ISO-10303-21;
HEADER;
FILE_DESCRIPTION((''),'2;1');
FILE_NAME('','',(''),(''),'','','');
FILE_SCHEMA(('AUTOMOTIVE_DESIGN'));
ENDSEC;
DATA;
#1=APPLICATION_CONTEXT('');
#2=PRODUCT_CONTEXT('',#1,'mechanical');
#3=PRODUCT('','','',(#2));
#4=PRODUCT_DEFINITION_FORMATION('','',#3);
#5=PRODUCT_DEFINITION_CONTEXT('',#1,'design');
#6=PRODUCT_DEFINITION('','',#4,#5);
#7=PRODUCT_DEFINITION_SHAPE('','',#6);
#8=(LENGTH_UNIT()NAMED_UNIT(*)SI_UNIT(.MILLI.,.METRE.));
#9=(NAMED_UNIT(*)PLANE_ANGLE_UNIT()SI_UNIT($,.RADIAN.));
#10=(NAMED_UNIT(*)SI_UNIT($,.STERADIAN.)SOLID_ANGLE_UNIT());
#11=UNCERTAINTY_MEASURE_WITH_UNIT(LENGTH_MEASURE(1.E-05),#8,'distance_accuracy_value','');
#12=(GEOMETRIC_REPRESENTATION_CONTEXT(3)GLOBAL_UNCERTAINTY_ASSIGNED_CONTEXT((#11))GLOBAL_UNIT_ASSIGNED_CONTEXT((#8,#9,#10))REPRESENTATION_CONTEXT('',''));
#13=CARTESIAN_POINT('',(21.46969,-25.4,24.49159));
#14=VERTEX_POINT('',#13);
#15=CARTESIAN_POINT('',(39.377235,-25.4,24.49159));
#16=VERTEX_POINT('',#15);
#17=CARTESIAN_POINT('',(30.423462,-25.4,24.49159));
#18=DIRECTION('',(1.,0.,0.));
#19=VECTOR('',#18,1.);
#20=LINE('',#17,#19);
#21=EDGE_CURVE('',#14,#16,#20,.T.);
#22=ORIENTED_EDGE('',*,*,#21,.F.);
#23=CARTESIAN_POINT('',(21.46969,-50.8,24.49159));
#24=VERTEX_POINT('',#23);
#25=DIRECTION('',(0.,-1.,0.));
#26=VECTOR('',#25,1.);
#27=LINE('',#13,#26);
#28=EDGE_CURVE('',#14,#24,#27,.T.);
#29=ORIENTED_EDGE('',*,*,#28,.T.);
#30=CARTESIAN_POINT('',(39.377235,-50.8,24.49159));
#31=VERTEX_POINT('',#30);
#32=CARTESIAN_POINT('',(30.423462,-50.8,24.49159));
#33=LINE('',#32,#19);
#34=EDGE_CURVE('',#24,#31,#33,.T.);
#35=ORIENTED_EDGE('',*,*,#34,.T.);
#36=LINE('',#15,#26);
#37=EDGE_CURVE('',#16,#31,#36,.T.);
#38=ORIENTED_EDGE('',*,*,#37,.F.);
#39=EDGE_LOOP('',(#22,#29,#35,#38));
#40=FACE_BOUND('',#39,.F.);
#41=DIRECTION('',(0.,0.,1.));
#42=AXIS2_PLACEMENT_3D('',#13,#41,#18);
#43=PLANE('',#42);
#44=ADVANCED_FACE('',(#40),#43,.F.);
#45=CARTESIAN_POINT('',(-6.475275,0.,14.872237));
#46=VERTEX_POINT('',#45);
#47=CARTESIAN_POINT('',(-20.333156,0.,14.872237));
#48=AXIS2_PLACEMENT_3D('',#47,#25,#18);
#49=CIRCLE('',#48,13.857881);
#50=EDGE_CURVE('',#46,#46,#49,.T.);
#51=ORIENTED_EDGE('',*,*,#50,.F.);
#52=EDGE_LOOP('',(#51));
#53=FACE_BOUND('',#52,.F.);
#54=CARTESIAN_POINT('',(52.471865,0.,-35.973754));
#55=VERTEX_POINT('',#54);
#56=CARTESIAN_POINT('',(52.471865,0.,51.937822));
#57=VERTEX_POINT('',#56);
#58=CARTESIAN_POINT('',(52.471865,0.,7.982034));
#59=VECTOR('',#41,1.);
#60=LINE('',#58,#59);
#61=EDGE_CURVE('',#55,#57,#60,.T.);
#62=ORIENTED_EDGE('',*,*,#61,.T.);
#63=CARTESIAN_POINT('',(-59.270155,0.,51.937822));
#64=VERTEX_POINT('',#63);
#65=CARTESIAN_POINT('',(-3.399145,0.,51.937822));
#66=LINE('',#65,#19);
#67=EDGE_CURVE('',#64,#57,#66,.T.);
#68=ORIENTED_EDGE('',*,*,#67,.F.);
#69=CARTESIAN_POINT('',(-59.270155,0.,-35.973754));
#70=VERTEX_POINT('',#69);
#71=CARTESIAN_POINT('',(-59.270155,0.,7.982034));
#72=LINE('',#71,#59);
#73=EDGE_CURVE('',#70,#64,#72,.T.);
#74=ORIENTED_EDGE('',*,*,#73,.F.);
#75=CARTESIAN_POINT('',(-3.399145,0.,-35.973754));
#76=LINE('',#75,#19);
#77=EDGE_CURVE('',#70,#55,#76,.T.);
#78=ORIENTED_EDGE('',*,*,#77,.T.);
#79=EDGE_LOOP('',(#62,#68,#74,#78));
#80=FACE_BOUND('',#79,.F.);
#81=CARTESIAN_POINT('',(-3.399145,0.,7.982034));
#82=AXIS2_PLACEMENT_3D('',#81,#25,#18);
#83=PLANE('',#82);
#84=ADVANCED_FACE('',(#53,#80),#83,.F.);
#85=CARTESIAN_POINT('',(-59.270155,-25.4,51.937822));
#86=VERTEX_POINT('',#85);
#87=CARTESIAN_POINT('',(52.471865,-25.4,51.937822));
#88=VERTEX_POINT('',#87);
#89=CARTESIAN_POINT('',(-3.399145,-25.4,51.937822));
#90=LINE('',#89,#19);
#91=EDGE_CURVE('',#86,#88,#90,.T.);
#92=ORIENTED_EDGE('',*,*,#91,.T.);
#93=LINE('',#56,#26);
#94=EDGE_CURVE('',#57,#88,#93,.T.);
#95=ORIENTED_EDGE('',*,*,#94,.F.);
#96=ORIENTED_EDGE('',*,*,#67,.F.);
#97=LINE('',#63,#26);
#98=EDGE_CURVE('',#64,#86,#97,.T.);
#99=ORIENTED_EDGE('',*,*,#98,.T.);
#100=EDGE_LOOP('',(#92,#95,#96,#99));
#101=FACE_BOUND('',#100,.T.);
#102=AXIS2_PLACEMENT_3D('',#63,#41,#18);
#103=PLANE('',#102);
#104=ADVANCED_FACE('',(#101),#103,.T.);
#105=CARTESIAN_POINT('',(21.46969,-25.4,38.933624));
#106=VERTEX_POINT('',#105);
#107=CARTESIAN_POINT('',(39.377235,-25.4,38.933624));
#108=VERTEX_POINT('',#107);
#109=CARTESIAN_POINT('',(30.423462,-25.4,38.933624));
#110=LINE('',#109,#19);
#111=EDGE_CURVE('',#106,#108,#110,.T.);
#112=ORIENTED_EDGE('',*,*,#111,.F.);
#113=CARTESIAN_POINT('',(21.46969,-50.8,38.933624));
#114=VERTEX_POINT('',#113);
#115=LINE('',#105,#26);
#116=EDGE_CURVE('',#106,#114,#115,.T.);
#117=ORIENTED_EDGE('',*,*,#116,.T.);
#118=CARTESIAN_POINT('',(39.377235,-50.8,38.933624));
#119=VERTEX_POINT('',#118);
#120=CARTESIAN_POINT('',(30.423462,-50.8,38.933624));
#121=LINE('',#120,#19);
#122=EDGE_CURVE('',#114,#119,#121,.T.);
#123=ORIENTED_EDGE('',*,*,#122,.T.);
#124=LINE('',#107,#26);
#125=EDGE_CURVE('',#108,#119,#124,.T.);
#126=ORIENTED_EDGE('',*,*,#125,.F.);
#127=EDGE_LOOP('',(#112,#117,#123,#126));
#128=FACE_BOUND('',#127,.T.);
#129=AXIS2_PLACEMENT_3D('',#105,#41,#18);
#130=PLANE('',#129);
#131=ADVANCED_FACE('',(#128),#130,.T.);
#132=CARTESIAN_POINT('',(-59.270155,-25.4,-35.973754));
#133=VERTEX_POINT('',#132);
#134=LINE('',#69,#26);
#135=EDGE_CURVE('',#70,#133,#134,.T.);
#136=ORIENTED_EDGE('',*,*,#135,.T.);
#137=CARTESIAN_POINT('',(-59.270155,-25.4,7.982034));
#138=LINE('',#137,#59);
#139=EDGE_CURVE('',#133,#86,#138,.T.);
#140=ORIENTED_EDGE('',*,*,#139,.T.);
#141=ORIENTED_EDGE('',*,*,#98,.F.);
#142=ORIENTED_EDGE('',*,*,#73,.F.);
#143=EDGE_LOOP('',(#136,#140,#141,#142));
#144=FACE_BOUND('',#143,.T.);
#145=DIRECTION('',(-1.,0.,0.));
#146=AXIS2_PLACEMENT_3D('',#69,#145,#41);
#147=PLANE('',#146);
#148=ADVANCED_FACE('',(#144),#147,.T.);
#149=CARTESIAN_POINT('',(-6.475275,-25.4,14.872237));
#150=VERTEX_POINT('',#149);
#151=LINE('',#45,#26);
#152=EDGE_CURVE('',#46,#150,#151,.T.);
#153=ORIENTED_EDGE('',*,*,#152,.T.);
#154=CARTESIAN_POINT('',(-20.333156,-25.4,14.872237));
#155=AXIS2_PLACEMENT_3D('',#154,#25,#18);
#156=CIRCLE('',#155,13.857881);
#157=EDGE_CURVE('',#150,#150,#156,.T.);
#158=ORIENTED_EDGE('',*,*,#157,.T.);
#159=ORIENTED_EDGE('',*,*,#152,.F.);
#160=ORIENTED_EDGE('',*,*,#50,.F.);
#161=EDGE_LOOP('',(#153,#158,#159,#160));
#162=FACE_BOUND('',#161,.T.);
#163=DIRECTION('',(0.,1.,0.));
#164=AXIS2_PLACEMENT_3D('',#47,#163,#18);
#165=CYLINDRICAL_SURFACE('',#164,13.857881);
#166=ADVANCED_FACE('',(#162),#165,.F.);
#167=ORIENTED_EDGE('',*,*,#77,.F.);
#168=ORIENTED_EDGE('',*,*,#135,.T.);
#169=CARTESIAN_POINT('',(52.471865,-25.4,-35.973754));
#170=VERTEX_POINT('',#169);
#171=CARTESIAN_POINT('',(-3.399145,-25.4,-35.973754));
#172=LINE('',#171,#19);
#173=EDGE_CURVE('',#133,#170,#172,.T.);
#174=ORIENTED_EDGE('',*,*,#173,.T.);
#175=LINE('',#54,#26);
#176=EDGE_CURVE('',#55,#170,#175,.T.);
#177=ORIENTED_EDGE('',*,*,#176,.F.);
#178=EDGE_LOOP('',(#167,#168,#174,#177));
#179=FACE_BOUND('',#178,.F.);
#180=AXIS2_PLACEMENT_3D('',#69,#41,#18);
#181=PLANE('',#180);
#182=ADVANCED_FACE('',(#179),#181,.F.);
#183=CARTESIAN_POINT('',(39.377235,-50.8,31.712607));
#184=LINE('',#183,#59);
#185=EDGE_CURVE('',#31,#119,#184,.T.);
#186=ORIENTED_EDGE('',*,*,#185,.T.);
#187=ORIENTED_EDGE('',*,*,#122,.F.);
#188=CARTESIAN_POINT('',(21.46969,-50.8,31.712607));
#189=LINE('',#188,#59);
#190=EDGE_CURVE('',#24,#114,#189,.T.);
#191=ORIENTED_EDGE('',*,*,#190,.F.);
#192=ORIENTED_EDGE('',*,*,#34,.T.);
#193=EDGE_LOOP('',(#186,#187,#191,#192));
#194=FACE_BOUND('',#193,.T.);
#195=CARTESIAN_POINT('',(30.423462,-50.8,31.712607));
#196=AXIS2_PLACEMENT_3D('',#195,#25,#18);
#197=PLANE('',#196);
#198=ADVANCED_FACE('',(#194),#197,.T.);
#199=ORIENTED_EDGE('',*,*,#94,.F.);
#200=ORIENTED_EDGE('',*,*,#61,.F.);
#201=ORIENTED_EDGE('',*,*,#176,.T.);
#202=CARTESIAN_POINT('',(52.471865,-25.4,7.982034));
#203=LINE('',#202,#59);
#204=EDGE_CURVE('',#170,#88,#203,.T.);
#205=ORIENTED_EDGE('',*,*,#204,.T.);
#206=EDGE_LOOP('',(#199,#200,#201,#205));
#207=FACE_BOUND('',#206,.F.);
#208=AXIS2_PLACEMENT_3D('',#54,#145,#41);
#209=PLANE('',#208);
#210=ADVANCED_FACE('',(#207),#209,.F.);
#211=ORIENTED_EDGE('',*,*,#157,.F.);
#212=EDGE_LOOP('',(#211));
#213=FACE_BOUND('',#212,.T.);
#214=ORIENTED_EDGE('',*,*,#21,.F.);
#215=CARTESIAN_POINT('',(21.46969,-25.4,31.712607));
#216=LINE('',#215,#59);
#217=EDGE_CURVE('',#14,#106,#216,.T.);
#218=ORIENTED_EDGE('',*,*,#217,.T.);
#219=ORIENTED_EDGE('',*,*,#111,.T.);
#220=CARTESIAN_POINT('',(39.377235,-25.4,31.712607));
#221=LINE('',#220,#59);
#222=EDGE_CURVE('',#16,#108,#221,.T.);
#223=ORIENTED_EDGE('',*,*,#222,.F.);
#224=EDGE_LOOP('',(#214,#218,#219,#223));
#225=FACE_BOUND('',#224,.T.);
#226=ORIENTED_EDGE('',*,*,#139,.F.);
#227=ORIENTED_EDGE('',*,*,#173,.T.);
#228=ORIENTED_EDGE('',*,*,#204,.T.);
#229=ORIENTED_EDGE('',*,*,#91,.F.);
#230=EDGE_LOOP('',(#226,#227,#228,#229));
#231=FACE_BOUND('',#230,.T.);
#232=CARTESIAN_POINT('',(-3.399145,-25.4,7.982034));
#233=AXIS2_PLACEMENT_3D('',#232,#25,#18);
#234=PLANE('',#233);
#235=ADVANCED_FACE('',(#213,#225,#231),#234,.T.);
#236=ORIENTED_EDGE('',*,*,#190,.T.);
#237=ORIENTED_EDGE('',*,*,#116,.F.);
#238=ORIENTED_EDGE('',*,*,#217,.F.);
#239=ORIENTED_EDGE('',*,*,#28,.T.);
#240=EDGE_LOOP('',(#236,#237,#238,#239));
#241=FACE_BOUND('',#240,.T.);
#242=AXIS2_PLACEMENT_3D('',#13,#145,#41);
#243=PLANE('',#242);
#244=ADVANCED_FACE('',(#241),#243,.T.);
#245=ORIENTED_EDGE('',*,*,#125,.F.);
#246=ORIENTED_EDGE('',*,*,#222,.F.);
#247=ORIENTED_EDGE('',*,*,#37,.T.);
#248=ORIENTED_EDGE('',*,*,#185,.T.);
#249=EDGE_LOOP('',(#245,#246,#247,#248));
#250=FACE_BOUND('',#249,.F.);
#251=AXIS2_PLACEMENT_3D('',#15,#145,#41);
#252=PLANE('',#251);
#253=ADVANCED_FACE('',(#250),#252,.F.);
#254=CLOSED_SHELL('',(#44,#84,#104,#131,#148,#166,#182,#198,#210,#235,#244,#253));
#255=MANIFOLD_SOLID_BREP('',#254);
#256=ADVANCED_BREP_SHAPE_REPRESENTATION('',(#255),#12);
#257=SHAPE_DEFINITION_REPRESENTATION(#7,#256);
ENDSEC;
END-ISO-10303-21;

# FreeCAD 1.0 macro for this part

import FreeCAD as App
import Part
import Sketcher

V = App.Vector
Q = App.Units.Quantity

doc = App.newDocument("Part")
body = doc.addObject("PartDesign::Body", "Body")

# Sketch on XZ plane
sketch1 = body.newObject("Sketcher::SketchObject", "Sketch")
sketch1.AttachmentSupport = (doc.getObject("XZ_Plane"), [""])
sketch1.MapMode = "FlatFace"
sketch1.addGeometry([
    Part.LineSegment(V(-59, 52, 0), V(-59, -36, 0)),  # 0
    Part.LineSegment(V(-59, -36, 0), V(52, -36, 0)),  # 1
    Part.LineSegment(V(52, -36, 0), V(52, 52, 0)),  # 2
    Part.LineSegment(V(52, 52, 0), V(-59, 52, 0)),  # 3
    Part.Circle(V(-20, 15, 0), V(0, 0, 1), 14),  # 4
], False)
sketch1.addConstraint([
    Sketcher.Constraint("Coincident", 0, 2, 1, 1),
    Sketcher.Constraint("Coincident", 1, 2, 2, 1),
    Sketcher.Constraint("Coincident", 2, 2, 3, 1),
    Sketcher.Constraint("Coincident", 3, 2, 0, 1),
    Sketcher.Constraint("Vertical", 0),
    Sketcher.Constraint("Horizontal", 1),
    Sketcher.Constraint("Vertical", 2),
    Sketcher.Constraint("Horizontal", 3),
    Sketcher.Constraint("Diameter", 4, Q("27.715762 mm")),
    Sketcher.Constraint("DistanceX", 1, 1, 1, 2, Q("111.74202 mm")),
    Sketcher.Constraint("DistanceX", 0, 2, 4, 3, Q("38.936999 mm")),
    Sketcher.Constraint("DistanceY", 0, 2, 0, 1, Q("87.911576 mm")),
    Sketcher.Constraint("DistanceY", -1, 1, 2, 2, Q("51.937822 mm")),
    Sketcher.Constraint("DistanceY", 0, 2, 4, 3, Q("50.845991 mm")),
    Sketcher.Constraint("DistanceX", 4, 3, -1, 1, Q("20.333156 mm")),
])
pad1 = body.newObject("PartDesign::Pad", "Pad")
pad1.Profile = sketch1
pad1.Length = Q("1 in")

# Sketch on XZ plane
sketch2 = body.newObject("Sketcher::SketchObject", "Sketch001")
sketch2.AttachmentSupport = (doc.getObject("XZ_Plane"), [""])
sketch2.MapMode = "FlatFace"
sketch2.AttachmentOffset = App.Placement(V(0, 0, 1 * 25.4), App.Rotation())
sketch2.addGeometry([
    Part.LineSegment(V(21, 39, 0), V(21, 24, 0)),
    Part.LineSegment(V(21, 24, 0), V(39, 24, 0)),
    Part.LineSegment(V(39, 24, 0), V(39, 39, 0)),
    Part.LineSegment(V(39, 39, 0), V(21, 39, 0)),
], False)
sketch2.addConstraint([
    Sketcher.Constraint("Coincident", 0, 2, 1, 1),
    Sketcher.Constraint("Coincident", 1, 2, 2, 1),
    Sketcher.Constraint("Coincident", 2, 2, 3, 1),
    Sketcher.Constraint("Coincident", 3, 2, 0, 1),
    Sketcher.Constraint("Vertical", 0),
    Sketcher.Constraint("Horizontal", 1),
    Sketcher.Constraint("Vertical", 2),
    Sketcher.Constraint("Horizontal", 3),
    Sketcher.Constraint("DistanceX", 1, 1, 1, 2, Q("17.907545 mm")),
    Sketcher.Constraint("DistanceY", 0, 2, 0, 1, Q("14.442034 mm")),
    Sketcher.Constraint("DistanceX", -1, 1, 0, 2, Q("21.46969 mm")),
    Sketcher.Constraint("DistanceY", -1, 1, 0, 2, Q("24.49159 mm")),
])
pad2 = body.newObject("PartDesign::Pad", "Pad001")
pad2.Profile = sketch2
pad2.Length = Q("1 in")

doc.recompute()
